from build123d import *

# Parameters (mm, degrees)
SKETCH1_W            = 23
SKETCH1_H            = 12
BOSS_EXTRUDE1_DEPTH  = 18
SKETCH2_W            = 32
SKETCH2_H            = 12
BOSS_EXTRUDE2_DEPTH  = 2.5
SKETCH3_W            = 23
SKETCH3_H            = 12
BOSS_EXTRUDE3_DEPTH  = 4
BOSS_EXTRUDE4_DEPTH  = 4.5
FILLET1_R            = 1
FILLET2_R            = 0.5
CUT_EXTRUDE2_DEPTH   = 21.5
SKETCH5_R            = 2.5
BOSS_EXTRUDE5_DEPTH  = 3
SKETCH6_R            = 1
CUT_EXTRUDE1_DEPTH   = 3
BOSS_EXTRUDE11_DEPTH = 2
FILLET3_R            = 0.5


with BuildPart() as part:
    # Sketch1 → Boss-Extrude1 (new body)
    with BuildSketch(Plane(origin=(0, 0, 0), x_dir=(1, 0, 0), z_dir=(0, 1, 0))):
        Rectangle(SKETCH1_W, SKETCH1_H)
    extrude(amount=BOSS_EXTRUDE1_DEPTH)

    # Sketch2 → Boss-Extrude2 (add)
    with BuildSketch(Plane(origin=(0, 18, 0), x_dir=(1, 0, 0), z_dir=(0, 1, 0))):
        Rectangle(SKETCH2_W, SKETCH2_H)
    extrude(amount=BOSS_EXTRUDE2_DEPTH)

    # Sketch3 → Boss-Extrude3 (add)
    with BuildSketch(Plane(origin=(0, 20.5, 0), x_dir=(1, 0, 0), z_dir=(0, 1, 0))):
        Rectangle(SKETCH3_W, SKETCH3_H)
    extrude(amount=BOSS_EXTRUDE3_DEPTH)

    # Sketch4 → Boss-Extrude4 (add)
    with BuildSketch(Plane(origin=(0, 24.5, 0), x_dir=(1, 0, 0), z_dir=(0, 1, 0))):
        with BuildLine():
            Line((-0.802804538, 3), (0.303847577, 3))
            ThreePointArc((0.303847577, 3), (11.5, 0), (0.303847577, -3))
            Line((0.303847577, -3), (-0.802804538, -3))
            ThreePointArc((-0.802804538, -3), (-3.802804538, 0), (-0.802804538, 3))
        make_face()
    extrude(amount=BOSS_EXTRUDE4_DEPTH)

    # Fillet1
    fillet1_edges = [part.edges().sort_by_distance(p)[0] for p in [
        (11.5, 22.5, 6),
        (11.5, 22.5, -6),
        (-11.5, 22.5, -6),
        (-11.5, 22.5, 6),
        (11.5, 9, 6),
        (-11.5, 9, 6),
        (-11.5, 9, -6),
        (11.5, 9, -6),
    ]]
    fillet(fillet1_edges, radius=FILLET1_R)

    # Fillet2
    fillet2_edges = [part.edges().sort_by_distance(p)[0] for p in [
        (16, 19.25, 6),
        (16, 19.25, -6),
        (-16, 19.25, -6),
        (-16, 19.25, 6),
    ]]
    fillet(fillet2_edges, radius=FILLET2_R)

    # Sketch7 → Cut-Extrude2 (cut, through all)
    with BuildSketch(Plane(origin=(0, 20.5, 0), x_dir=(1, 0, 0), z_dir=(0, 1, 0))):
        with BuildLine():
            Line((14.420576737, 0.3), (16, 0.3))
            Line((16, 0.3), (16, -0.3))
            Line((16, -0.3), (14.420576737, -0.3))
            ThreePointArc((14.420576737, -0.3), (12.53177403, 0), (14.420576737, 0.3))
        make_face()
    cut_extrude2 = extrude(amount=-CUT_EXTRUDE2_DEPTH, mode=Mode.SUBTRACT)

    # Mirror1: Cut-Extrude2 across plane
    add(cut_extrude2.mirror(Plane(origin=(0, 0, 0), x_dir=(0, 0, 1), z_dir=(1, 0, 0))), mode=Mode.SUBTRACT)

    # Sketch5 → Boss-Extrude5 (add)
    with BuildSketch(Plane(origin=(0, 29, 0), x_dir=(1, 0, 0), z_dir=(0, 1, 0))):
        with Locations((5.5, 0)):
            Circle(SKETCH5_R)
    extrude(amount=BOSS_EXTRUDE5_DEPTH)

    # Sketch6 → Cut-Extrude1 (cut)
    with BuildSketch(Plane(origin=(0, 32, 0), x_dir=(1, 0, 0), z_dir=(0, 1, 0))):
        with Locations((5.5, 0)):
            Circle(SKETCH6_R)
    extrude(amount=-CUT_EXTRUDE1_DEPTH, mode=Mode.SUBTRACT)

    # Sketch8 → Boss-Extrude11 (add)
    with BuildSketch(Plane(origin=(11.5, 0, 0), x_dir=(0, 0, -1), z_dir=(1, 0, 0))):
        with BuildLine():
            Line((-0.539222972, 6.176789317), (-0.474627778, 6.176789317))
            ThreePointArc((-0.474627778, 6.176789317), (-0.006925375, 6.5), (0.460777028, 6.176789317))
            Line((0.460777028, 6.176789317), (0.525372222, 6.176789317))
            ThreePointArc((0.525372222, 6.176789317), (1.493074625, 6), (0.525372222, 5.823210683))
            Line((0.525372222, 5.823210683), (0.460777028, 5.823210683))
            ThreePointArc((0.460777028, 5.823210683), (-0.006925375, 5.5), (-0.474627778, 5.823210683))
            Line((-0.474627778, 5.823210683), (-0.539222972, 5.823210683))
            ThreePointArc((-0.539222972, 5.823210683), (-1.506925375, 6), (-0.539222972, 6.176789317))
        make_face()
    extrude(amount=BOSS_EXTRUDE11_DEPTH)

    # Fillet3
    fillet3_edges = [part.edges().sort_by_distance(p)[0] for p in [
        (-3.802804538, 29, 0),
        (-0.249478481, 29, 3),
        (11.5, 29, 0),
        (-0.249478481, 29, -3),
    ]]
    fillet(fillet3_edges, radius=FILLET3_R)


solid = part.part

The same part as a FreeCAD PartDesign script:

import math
import FreeCAD as App
import Part
import Sketcher
from FreeCAD import Vector
Q = App.Units.Quantity


def edges_at(feature, points):
    """Names of the edges that pass closest to the given points."""
    edges = feature.Shape.Edges
    near = lambda p: min(range(len(edges)), key=lambda i: edges[i].distToShape(Part.Vertex(*p))[0])
    return sorted({f"Edge{near(p) + 1}" for p in points})

doc = App.newDocument("Part")
body = doc.addObject("PartDesign::Body", "Body")

# Sketch on XZ plane
sketch1 = body.newObject("Sketcher::SketchObject", "Sketch")
sketch1.AttachmentSupport = (doc.getObject("XZ_Plane"), [""])
sketch1.MapMode = "FlatFace"
sketch1.addGeometry([
    Part.LineSegment(Vector(-11.5, -6, 0), Vector(-11.5, 6, 0)),
    Part.LineSegment(Vector(-11.5, 6, 0), Vector(11.5, 6, 0)),
    Part.LineSegment(Vector(11.5, 6, 0), Vector(11.5, -6, 0)),
    Part.LineSegment(Vector(11.5, -6, 0), Vector(-11.5, -6, 0)),
], False)
sketch1.addConstraint([
    Sketcher.Constraint("Coincident", 0, 2, 1, 1),
    Sketcher.Constraint("Coincident", 1, 2, 2, 1),
    Sketcher.Constraint("Coincident", 2, 2, 3, 1),
    Sketcher.Constraint("Coincident", 3, 2, 0, 1),
    Sketcher.Constraint("Vertical", 0),
    Sketcher.Constraint("Horizontal", 1),
    Sketcher.Constraint("Vertical", 2),
    Sketcher.Constraint("Horizontal", 3),
    Sketcher.Constraint("Symmetric", 0, 2, 2, 2, -1, 1),
    Sketcher.Constraint("DistanceX", 1, 1, 1, 2, Q("23 mm")),
    Sketcher.Constraint("DistanceY", 0, 1, 0, 2, Q("12 mm")),
])
pad1 = body.newObject("PartDesign::Pad", "Pad")
pad1.Profile = sketch1
pad1.Length = 18
pad1.Reversed = True

# Sketch on XZ plane
sketch2 = body.newObject("Sketcher::SketchObject", "Sketch001")
sketch2.AttachmentSupport = (doc.getObject("XZ_Plane"), [""])
sketch2.MapMode = "FlatFace"
sketch2.AttachmentOffset = App.Placement(Vector(0, 0, -18), App.Rotation())
sketch2.addGeometry([
    Part.LineSegment(Vector(-16, -6, 0), Vector(-16, 6, 0)),
    Part.LineSegment(Vector(-16, 6, 0), Vector(16, 6, 0)),
    Part.LineSegment(Vector(16, 6, 0), Vector(16, -6, 0)),
    Part.LineSegment(Vector(16, -6, 0), Vector(-16, -6, 0)),
], False)
sketch2.addConstraint([
    Sketcher.Constraint("Coincident", 0, 2, 1, 1),
    Sketcher.Constraint("Coincident", 1, 2, 2, 1),
    Sketcher.Constraint("Coincident", 2, 2, 3, 1),
    Sketcher.Constraint("Coincident", 3, 2, 0, 1),
    Sketcher.Constraint("Vertical", 0),
    Sketcher.Constraint("Horizontal", 1),
    Sketcher.Constraint("Vertical", 2),
    Sketcher.Constraint("Horizontal", 3),
    Sketcher.Constraint("Symmetric", 0, 2, 2, 2, -1, 1),
    Sketcher.Constraint("DistanceX", 1, 1, 1, 2, Q("32 mm")),
    Sketcher.Constraint("DistanceY", 0, 1, 0, 2, Q("12 mm")),
])
pad2 = body.newObject("PartDesign::Pad", "Pad001")
pad2.Profile = sketch2
pad2.Length = 2.5
pad2.Reversed = True

# Sketch on XZ plane
sketch3 = body.newObject("Sketcher::SketchObject", "Sketch002")
sketch3.AttachmentSupport = (doc.getObject("XZ_Plane"), [""])
sketch3.MapMode = "FlatFace"
sketch3.AttachmentOffset = App.Placement(Vector(0, 0, -20.5), App.Rotation())
sketch3.addGeometry([
    Part.LineSegment(Vector(-11.5, -6, 0), Vector(-11.5, 6, 0)),
    Part.LineSegment(Vector(-11.5, 6, 0), Vector(11.5, 6, 0)),
    Part.LineSegment(Vector(11.5, 6, 0), Vector(11.5, -6, 0)),
    Part.LineSegment(Vector(11.5, -6, 0), Vector(-11.5, -6, 0)),
], False)
sketch3.addConstraint([
    Sketcher.Constraint("Coincident", 0, 2, 1, 1),
    Sketcher.Constraint("Coincident", 1, 2, 2, 1),
    Sketcher.Constraint("Coincident", 2, 2, 3, 1),
    Sketcher.Constraint("Coincident", 3, 2, 0, 1),
    Sketcher.Constraint("Vertical", 0),
    Sketcher.Constraint("Horizontal", 1),
    Sketcher.Constraint("Vertical", 2),
    Sketcher.Constraint("Horizontal", 3),
    Sketcher.Constraint("Symmetric", 0, 2, 2, 2, -1, 1),
    Sketcher.Constraint("DistanceX", 1, 1, 1, 2, Q("23 mm")),
    Sketcher.Constraint("DistanceY", 0, 1, 0, 2, Q("12 mm")),
])
pad3 = body.newObject("PartDesign::Pad", "Pad002")
pad3.Profile = sketch3
pad3.Length = 4
pad3.Reversed = True

# Sketch on XZ plane
sketch4 = body.newObject("Sketcher::SketchObject", "Sketch003")
sketch4.AttachmentSupport = (doc.getObject("XZ_Plane"), [""])
sketch4.MapMode = "FlatFace"
sketch4.AttachmentOffset = App.Placement(Vector(0, 0, -24.5), App.Rotation())
sketch4.addGeometry([
    Part.LineSegment(Vector(0.303848, -3, 0), Vector(-0.802805, -3, 0)),
    Part.ArcOfCircle(Part.Circle(Vector(-0.802805, 0, 0), Vector(0, 0, 1), 3), math.radians(90), math.radians(270)),
    Part.LineSegment(Vector(-0.802805, 3, 0), Vector(0.303848, 3, 0)),
    Part.ArcOfCircle(Part.Circle(Vector(5.5, 0, 0), Vector(0, 0, 1), 6), math.radians(-150), math.radians(150)),
], False)
sketch4.addConstraint([
    Sketcher.Constraint("Tangent", 0, 2, 1, 2),
    Sketcher.Constraint("Tangent", 1, 1, 2, 1),
    Sketcher.Constraint("Coincident", 2, 2, 3, 2),
    Sketcher.Constraint("Coincident", 3, 1, 0, 1),
    Sketcher.Constraint("Horizontal", 0),
    Sketcher.Constraint("Horizontal", 2),
    Sketcher.Constraint("Symmetric", 2, 2, 3, 1, -1),
    Sketcher.Constraint("Radius", 1, Q("3 mm")),
    Sketcher.Constraint("Radius", 3, Q("6 mm")),
    Sketcher.Constraint("DistanceX", -1, 1, 3, 3, Q("5.5 mm")),
    Sketcher.Constraint("DistanceX", 0, 2, 0, 1, Q("1.106652 mm")),
])
pad4 = body.newObject("PartDesign::Pad", "Pad003")
pad4.Profile = sketch4
pad4.Length = 4.5
pad4.Reversed = True
doc.recompute()

fillet = body.newObject("PartDesign::Fillet", "Fillet")
fillet.Base = (pad4, edges_at(pad4, [
    (11.5, 22.5, 6),
    (11.5, 22.5, -6),
    (-11.5, 22.5, -6),
    (-11.5, 22.5, 6),
    (11.5, 9, 6),
    (-11.5, 9, 6),
    (-11.5, 9, -6),
    (11.5, 9, -6),
]))
fillet.Radius = 1
doc.recompute()

fillet2 = body.newObject("PartDesign::Fillet", "Fillet001")
fillet2.Base = (fillet, edges_at(fillet, [
    (16, 19.25, 6),
    (16, 19.25, -6),
    (-16, 19.25, -6),
    (-16, 19.25, 6),
]))
fillet2.Radius = 0.5

# Sketch on XZ plane
sketch5 = body.newObject("Sketcher::SketchObject", "Sketch004")
sketch5.AttachmentSupport = (doc.getObject("XZ_Plane"), [""])
sketch5.MapMode = "FlatFace"
sketch5.AttachmentOffset = App.Placement(Vector(0, 0, -20.5), App.Rotation())
sketch5.addGeometry([
    Part.LineSegment(Vector(16, -0.3, 0), Vector(14.420577, -0.3, 0)),
    Part.ArcOfCircle(Part.Circle(Vector(13.5, 0, 0), Vector(0, 0, 1), 0.968226), math.radians(18.049891), math.radians(341.950109)),
    Part.LineSegment(Vector(14.420577, 0.3, 0), Vector(16, 0.3, 0)),
    Part.LineSegment(Vector(16, 0.3, 0), Vector(16, -0.3, 0)),
], False)
sketch5.addConstraint([
    Sketcher.Constraint("Coincident", 0, 2, 1, 2),
    Sketcher.Constraint("Coincident", 1, 1, 2, 1),
    Sketcher.Constraint("Coincident", 2, 2, 3, 1),
    Sketcher.Constraint("Coincident", 3, 2, 0, 1),
    Sketcher.Constraint("Horizontal", 0),
    Sketcher.Constraint("Horizontal", 2),
    Sketcher.Constraint("Vertical", 3),
    Sketcher.Constraint("Symmetric", 0, 2, 1, 1, -1),
    Sketcher.Constraint("DistanceY", 3, 2, 3, 1, Q("0.6 mm")),
    Sketcher.Constraint("DistanceX", -1, 1, 2, 2, Q("16 mm")),
    Sketcher.Constraint("DistanceX", -1, 1, 1, 3, Q("13.5 mm")),
    Sketcher.Constraint("Radius", 1, Q("0.968226 mm")),
])
pocket1 = body.newObject("PartDesign::Pocket", "Pocket")
pocket1.Profile = sketch5
pocket1.Type = "ThroughAll"
pocket1.Reversed = True
doc.recompute()

mirrored = body.newObject("PartDesign::Mirrored", "Mirrored")
mirrored.Originals = [pocket1]
mirrored.MirrorPlane = (doc.getObject("YZ_Plane"), [""])
body.Tip = mirrored

# Sketch on XZ plane
sketch6 = body.newObject("Sketcher::SketchObject", "Sketch005")
sketch6.AttachmentSupport = (doc.getObject("XZ_Plane"), [""])
sketch6.MapMode = "FlatFace"
sketch6.AttachmentOffset = App.Placement(Vector(0, 0, -29), App.Rotation())
sketch6.addGeometry(Part.Circle(Vector(5.5, 0, 0), Vector(0, 0, 1), 2.5), False)
sketch6.addConstraint([
    Sketcher.Constraint("PointOnObject", 0, 3, -1),
    Sketcher.Constraint("Diameter", 0, Q("5 mm")),
    Sketcher.Constraint("DistanceX", -1, 1, 0, 3, Q("5.5 mm")),
])
pad5 = body.newObject("PartDesign::Pad", "Pad004")
pad5.Profile = sketch6
pad5.Length = 3
pad5.Reversed = True

# Sketch on XZ plane
sketch7 = body.newObject("Sketcher::SketchObject", "Sketch006")
sketch7.AttachmentSupport = (doc.getObject("XZ_Plane"), [""])
sketch7.MapMode = "FlatFace"
sketch7.AttachmentOffset = App.Placement(Vector(0, 0, -32), App.Rotation())
sketch7.addGeometry(Part.Circle(Vector(5.5, 0, 0), Vector(0, 0, 1), 1), False)
sketch7.addConstraint([
    Sketcher.Constraint("PointOnObject", 0, 3, -1),
    Sketcher.Constraint("Diameter", 0, Q("2 mm")),
    Sketcher.Constraint("DistanceX", -1, 1, 0, 3, Q("5.5 mm")),
])
pocket2 = body.newObject("PartDesign::Pocket", "Pocket001")
pocket2.Profile = sketch7
pocket2.Length = 3
pocket2.Reversed = True

# Sketch on YZ plane
sketch8 = body.newObject("Sketcher::SketchObject", "Sketch007")
sketch8.AttachmentSupport = (doc.getObject("YZ_Plane"), [""])
sketch8.MapMode = "FlatFace"
sketch8.AttachmentOffset = App.Placement(Vector(0, 0, 11.5), App.Rotation())
sketch8.addGeometry([
    Part.LineSegment(Vector(6.176789, 0.474628, 0), Vector(6.176789, 0.539223, 0)),  # 0
    Part.ArcOfCircle(Part.Circle(Vector(6, 1.006925, 0), Vector(0, 0, 1), 0.5), math.radians(-69.293643), math.radians(249.293643)),  # 1
    Part.LineSegment(Vector(5.823211, 0.539223, 0), Vector(5.823211, 0.474628, 0)),  # 2
    Part.ArcOfCircle(Part.Circle(Vector(6, 0.006925, 0), Vector(0, 0, 1), 0.5), math.radians(110.706357), math.radians(249.293643)),  # 3
    Part.LineSegment(Vector(5.823211, -0.460777, 0), Vector(5.823211, -0.525372, 0)),  # 4
    Part.ArcOfCircle(Part.Circle(Vector(6, -0.993075, 0), Vector(0, 0, 1), 0.5), math.radians(110.706357), math.radians(429.293643)),  # 5
    Part.LineSegment(Vector(6.176789, -0.525372, 0), Vector(6.176789, -0.460777, 0)),  # 6
    Part.ArcOfCircle(Part.Circle(Vector(6, 0.006925, 0), Vector(0, 0, 1), 0.5), math.radians(-69.293643), math.radians(69.293643)),  # 7
], False)
sketch8.addConstraint([
    Sketcher.Constraint("Coincident", 0, 2, 1, 1),
    Sketcher.Constraint("Coincident", 1, 2, 2, 1),
    Sketcher.Constraint("Coincident", 2, 2, 3, 1),
    Sketcher.Constraint("Coincident", 3, 2, 4, 1),
    Sketcher.Constraint("Coincident", 4, 2, 5, 1),
    Sketcher.Constraint("Coincident", 5, 2, 6, 1),
    Sketcher.Constraint("Coincident", 6, 2, 7, 1),
    Sketcher.Constraint("Coincident", 7, 2, 0, 1),
    Sketcher.Constraint("Vertical", 0),
    Sketcher.Constraint("Vertical", 2),
    Sketcher.Constraint("Vertical", 4),
    Sketcher.Constraint("Vertical", 6),
    Sketcher.Constraint("Coincident", 7, 3, 3, 3),
    Sketcher.Constraint("Equal", 1, 3),
    Sketcher.Constraint("Equal", 3, 5),
    Sketcher.Constraint("Equal", 5, 7),
    Sketcher.Constraint("Horizontal", 0, 2, 1, 2),
    Sketcher.Constraint("Horizontal", 4, 2, 5, 2),
    Sketcher.Constraint("Horizontal", 3, 2, 6, 2),
    Sketcher.Constraint("Horizontal", 2, 2, 7, 2),
    Sketcher.Constraint("Vertical", 2, 2, 3, 2),
    Sketcher.Constraint("Equal", 2, 4),
    Sketcher.Constraint("Radius", 1, Q("0.5 mm")),
    Sketcher.Constraint("DistanceX", -1, 1, 1, 3, Q("6 mm")),
    Sketcher.Constraint("DistanceY", 3, 3, 1, 3, Q("1 mm")),
    Sketcher.Constraint("DistanceY", 0, 1, 0, 2, Q("0.064595 mm")),
    Sketcher.Constraint("DistanceY", -1, 1, 1, 3, Q("1.006925 mm")),
])
pad6 = body.newObject("PartDesign::Pad", "Pad005")
pad6.Profile = sketch8
pad6.Length = 2
doc.recompute()

fillet3 = body.newObject("PartDesign::Fillet", "Fillet002")
fillet3.Base = (pad6, edges_at(pad6, [
    (-3.803, 29, 0),
    (-0.249, 29, 3),
    (11.5, 29, 0),
    (-0.249, 29, -3),
]))
fillet3.Radius = 0.5

doc.recompute()
